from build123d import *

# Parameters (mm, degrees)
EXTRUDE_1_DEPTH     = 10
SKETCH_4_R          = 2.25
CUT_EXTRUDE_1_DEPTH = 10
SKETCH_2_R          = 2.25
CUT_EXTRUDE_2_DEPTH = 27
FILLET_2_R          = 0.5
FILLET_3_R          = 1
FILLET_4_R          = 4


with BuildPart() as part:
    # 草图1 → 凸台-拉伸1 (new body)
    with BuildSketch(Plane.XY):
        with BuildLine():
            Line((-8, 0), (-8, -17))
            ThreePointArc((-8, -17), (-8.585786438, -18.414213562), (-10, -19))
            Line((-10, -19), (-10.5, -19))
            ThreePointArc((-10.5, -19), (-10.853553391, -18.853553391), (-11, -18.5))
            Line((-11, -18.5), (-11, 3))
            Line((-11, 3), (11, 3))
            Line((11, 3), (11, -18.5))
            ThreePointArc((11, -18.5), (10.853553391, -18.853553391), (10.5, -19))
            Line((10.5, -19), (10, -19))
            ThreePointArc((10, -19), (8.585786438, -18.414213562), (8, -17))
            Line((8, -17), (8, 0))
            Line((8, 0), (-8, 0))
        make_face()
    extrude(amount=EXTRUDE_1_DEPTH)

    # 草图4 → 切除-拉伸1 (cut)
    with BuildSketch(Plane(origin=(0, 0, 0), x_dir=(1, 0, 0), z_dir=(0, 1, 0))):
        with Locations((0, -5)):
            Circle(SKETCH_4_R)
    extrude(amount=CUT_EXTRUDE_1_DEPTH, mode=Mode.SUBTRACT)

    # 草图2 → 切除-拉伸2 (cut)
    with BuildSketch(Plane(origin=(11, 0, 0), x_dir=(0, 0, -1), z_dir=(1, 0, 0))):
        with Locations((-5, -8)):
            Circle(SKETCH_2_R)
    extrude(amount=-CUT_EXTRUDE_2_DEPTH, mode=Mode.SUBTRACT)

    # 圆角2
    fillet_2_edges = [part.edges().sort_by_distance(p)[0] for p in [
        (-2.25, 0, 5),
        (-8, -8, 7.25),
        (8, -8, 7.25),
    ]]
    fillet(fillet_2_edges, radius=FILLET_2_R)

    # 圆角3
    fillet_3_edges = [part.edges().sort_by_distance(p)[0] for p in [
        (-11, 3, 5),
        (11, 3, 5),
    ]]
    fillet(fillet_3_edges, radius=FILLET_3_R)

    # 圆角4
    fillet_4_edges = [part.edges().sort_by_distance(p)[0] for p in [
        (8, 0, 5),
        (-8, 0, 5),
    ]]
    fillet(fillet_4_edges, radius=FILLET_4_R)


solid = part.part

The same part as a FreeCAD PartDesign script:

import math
import FreeCAD as App
import Part
import Sketcher

V = App.Vector


def edges_at(feature, points):
    """Names of the edges that pass closest to the given points."""
    edges = feature.Shape.Edges
    near = lambda p: min(range(len(edges)), key=lambda i: edges[i].distToShape(Part.Vertex(*p))[0])
    return sorted({f"Edge{near(p) + 1}" for p in points})

doc = App.newDocument("Part")
body = doc.addObject("PartDesign::Body", "Body")

sketch1 = doc.addObject("Sketcher::SketchObject", "Sketch")
body.addObject(sketch1)
sketch1.AttachmentSupport = (doc.XY_Plane, [""])
sketch1.MapMode = "FlatFace"
sketch1.addGeometry([
    Part.LineSegment(V(-8, -17, 0), V(-8, 0, 0)),
    Part.LineSegment(V(-8, 0, 0), V(8, 0, 0)),
    Part.LineSegment(V(8, 0, 0), V(8, -17, 0)),
    Part.ArcOfCircle(Part.Circle(V(10, -17, 0), V(0, 0, 1), 2), math.radians(-180), math.radians(-90)),
    Part.LineSegment(V(10, -19, 0), V(10.5, -19, 0)),
    Part.ArcOfCircle(Part.Circle(V(10.5, -18.5, 0), V(0, 0, 1), 0.5), math.radians(-90), math.radians(0)),
    Part.LineSegment(V(11, -18.5, 0), V(11, 3, 0)),
    Part.LineSegment(V(11, 3, 0), V(-11, 3, 0)),
    Part.LineSegment(V(-11, 3, 0), V(-11, -18.5, 0)),
    Part.ArcOfCircle(Part.Circle(V(-10.5, -18.5, 0), V(0, 0, 1), 0.5), math.radians(180), math.radians(270)),
    Part.LineSegment(V(-10.5, -19, 0), V(-10, -19, 0)),
    Part.ArcOfCircle(Part.Circle(V(-10, -17, 0), V(0, 0, 1), 2), math.radians(-90), math.radians(0)),
], False)
sketch1.addConstraint([
    Sketcher.Constraint("Coincident", 0, 2, 1, 1),
    Sketcher.Constraint("Coincident", 1, 2, 2, 1),
    Sketcher.Constraint("Tangent", 2, 2, 3, 1),
    Sketcher.Constraint("Tangent", 3, 2, 4, 1),
    Sketcher.Constraint("Tangent", 4, 2, 5, 1),
    Sketcher.Constraint("Tangent", 5, 2, 6, 1),
    Sketcher.Constraint("Coincident", 6, 2, 7, 1),
    Sketcher.Constraint("Coincident", 7, 2, 8, 1),
    Sketcher.Constraint("Tangent", 8, 2, 9, 1),
    Sketcher.Constraint("Tangent", 9, 2, 10, 1),
    Sketcher.Constraint("Tangent", 10, 2, 11, 1),
    Sketcher.Constraint("Tangent", 11, 2, 0, 1),
    Sketcher.Constraint("Vertical", 0),
    Sketcher.Constraint("Horizontal", 1),
    Sketcher.Constraint("Vertical", 2),
    Sketcher.Constraint("Horizontal", 4),
    Sketcher.Constraint("Vertical", 6),
    Sketcher.Constraint("Horizontal", 7),
    Sketcher.Constraint("Vertical", 8),
    Sketcher.Constraint("Horizontal", 10),
    Sketcher.Constraint("Equal", 5, 9),
    Sketcher.Constraint("Equal", 3, 11),
    Sketcher.Constraint("Symmetric", 0, 2, 1, 2, -1, 1),
    Sketcher.Constraint("Symmetric", 5, 3, 9, 3, -2),
    Sketcher.Constraint("Radius", 3, 2.0),
    Sketcher.Constraint("Radius", 5, 0.5),
    Sketcher.Constraint("DistanceX", 1, 1, 1, 2, 16.0),
    Sketcher.Constraint("DistanceX", 7, 2, 7, 1, 22.0),
    Sketcher.Constraint("DistanceY", 0, 1, 0, 2, 17.0),
    Sketcher.Constraint("DistanceY", 6, 1, 6, 2, 21.5),
])
pad1 = doc.addObject("PartDesign::Pad", "Pad")
body.addObject(pad1)
pad1.Profile = sketch1
pad1.Length = 10

sketch2 = doc.addObject("Sketcher::SketchObject", "Sketch001")
body.addObject(sketch2)
sketch2.AttachmentSupport = (doc.XZ_Plane, [""])
sketch2.MapMode = "FlatFace"
sketch2.addGeometry(Part.Circle(V(0, 5, 0), V(0, 0, 1), 2.25), False)
sketch2.addConstraint([
    Sketcher.Constraint("PointOnObject", 0, 3, -2),
    Sketcher.Constraint("Diameter", 0, 4.5),
    Sketcher.Constraint("DistanceY", -1, 1, 0, 3, 5.0),
])
pocket1 = doc.addObject("PartDesign::Pocket", "Pocket")
body.addObject(pocket1)
pocket1.Profile = sketch2
pocket1.Length = 10

sketch3 = doc.addObject("Sketcher::SketchObject", "Sketch002")
body.addObject(sketch3)
sketch3.AttachmentSupport = (doc.YZ_Plane, [""])
sketch3.MapMode = "FlatFace"
sketch3.AttachmentOffset = App.Placement(V(0, 0, 11), App.Rotation())
sketch3.addGeometry(Part.Circle(V(-8, 5, 0), V(0, 0, 1), 2.25), False)
sketch3.addConstraint([
    Sketcher.Constraint("Diameter", 0, 4.5),
    Sketcher.Constraint("DistanceX", 0, 3, -1, 1, 8.0),
    Sketcher.Constraint("DistanceY", -1, 1, 0, 3, 5.0),
])
pocket2 = doc.addObject("PartDesign::Pocket", "Pocket001")
body.addObject(pocket2)
pocket2.Profile = sketch3
pocket2.Length = 27
doc.recompute()

fillet = doc.addObject("PartDesign::Fillet", "Fillet")
body.addObject(fillet)
fillet.Base = (pocket2, edges_at(pocket2, [(-2.25, 0, 5), (-8, -8, 7.25), (8, -8, 7.25)]))
fillet.Radius = 0.5
doc.recompute()

fillet2 = doc.addObject("PartDesign::Fillet", "Fillet001")
body.addObject(fillet2)
fillet2.Base = (fillet, edges_at(fillet, [(-11, 3, 5), (11, 3, 5)]))
fillet2.Radius = 1
doc.recompute()

fillet3 = doc.addObject("PartDesign::Fillet", "Fillet002")
body.addObject(fillet3)
fillet3.Base = (fillet2, edges_at(fillet2, [(8, 0, 5), (-8, 0, 5)]))
fillet3.Radius = 4

doc.recompute()
